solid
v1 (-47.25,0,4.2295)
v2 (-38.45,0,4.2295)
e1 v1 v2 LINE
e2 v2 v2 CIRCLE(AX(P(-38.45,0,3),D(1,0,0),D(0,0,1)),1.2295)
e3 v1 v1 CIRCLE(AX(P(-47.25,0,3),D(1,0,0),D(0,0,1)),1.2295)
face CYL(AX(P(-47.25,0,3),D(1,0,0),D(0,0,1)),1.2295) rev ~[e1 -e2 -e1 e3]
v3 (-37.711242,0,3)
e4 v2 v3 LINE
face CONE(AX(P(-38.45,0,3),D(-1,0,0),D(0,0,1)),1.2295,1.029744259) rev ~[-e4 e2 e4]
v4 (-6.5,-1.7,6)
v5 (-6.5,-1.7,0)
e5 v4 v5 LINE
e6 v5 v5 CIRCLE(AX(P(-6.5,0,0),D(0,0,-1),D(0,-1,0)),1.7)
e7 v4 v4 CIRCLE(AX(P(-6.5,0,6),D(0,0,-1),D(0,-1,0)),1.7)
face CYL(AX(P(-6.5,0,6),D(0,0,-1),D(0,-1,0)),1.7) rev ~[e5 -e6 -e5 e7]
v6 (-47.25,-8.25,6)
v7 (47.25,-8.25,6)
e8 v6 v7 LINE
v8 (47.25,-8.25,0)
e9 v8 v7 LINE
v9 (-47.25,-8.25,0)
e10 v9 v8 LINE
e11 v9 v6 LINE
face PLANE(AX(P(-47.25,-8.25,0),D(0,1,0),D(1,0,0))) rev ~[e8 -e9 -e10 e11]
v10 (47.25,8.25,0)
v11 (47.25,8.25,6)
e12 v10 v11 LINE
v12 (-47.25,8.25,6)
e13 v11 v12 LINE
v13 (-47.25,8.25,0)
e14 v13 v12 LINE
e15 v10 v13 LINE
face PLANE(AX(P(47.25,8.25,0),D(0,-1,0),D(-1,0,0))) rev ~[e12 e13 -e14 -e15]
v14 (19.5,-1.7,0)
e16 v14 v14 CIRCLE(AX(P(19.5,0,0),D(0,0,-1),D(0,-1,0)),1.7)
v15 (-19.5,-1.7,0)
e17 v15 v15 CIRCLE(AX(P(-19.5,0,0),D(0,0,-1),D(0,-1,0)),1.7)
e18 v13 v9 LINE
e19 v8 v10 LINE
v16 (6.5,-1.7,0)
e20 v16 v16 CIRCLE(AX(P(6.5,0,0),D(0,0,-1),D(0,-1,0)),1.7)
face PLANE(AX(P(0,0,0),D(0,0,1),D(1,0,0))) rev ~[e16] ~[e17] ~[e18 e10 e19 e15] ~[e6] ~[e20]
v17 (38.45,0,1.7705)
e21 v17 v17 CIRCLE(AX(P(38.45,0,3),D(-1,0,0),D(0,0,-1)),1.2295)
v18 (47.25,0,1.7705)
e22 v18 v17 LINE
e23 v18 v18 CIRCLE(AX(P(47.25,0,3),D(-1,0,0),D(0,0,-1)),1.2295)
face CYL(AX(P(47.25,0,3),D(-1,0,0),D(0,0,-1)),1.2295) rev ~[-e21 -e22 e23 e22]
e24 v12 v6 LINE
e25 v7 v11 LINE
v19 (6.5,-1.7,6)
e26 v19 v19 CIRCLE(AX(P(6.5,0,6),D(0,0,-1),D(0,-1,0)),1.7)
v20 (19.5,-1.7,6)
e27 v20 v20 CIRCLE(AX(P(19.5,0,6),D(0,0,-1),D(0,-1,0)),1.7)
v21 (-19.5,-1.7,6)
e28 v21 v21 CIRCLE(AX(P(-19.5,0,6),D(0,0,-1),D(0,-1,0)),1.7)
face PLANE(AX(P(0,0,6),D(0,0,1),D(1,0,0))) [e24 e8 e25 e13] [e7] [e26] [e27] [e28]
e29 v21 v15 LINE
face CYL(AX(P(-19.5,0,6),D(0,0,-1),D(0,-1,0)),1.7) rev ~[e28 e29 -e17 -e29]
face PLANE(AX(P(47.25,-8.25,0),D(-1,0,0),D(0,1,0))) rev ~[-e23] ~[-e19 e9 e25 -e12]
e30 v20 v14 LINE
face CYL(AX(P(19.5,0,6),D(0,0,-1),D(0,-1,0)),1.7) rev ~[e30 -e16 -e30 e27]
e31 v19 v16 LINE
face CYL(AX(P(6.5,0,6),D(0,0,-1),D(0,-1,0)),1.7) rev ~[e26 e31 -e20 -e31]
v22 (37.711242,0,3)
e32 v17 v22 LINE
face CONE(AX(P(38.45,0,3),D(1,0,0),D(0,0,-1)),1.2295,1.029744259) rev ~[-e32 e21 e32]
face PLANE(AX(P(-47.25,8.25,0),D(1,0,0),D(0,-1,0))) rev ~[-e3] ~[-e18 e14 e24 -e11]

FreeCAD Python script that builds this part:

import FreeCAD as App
import Part
import Sketcher

doc = App.newDocument("Part")
params = doc.addObject("Spreadsheet::Sheet", "Params")
for row, (alias, value) in enumerate([
    ("sketch1_width", "94.5 mm"),
    ("sketch1_height", "16.5 mm"),
    ("pad1_length", "6 mm"),
    ("sketch2_diameter", "3.4 mm"),
    ("hole_diameter", "3.4 mm"),
    ("hole_depth", "8 mm"),
    ("hole2_diameter", "2.459 mm"),
    ("hole2_depth", "8.8 mm"),
    ("hole3_diameter", "2.459 mm"),
    ("hole3_depth", "8.8 mm"),
], start=1):
    params.set(f"A{row}", alias)
    params.set(f"B{row}", "=" + value)
    params.setAlias(f"B{row}", alias)

body = doc.addObject("PartDesign::Body", "Body")

sketch1 = body.newObject("Sketcher::SketchObject", "Sketch")
sketch1.AttachmentSupport = (doc.getObject("XY_Plane"), [""])
sketch1.MapMode = "FlatFace"
sketch1.addGeometry([
    Part.LineSegment(App.Vector(-47, 8, 0), App.Vector(-47, -8, 0)),
    Part.LineSegment(App.Vector(-47, -8, 0), App.Vector(47, -8, 0)),
    Part.LineSegment(App.Vector(47, -8, 0), App.Vector(47, 8, 0)),
    Part.LineSegment(App.Vector(47, 8, 0), App.Vector(-47, 8, 0)),
], False)
sketch1.addConstraint([
    Sketcher.Constraint("Coincident", 0, 2, 1, 1),
    Sketcher.Constraint("Coincident", 1, 2, 2, 1),
    Sketcher.Constraint("Coincident", 2, 2, 3, 1),
    Sketcher.Constraint("Coincident", 3, 2, 0, 1),
    Sketcher.Constraint("Vertical", 0),
    Sketcher.Constraint("Horizontal", 1),
    Sketcher.Constraint("Vertical", 2),
    Sketcher.Constraint("Horizontal", 3),
    Sketcher.Constraint("Symmetric", 0, 2, 2, 2, -1, 1),
    Sketcher.Constraint("DistanceX", 1, 1, 1, 2, 94.5),
    Sketcher.Constraint("DistanceY", 0, 2, 0, 1, 16.5),
])
sketch1.setExpression("Constraints[9]", "Params.sketch1_width")
sketch1.setExpression("Constraints[10]", "Params.sketch1_height")
pad1 = body.newObject("PartDesign::Pad", "Pad")
pad1.Profile = sketch1
pad1.setExpression("Length", "Params.pad1_length")

sketch2 = body.newObject("Sketcher::SketchObject", "Sketch001")
sketch2.AttachmentSupport = (doc.getObject("XY_Plane"), [""])
sketch2.MapMode = "FlatFace"
sketch2.AttachmentOffset = App.Placement(App.Vector(0, 0, 6), App.Rotation())
sketch2.addGeometry([
    Part.Circle(App.Vector(-19.5, 0, 0), App.Vector(0, 0, 1), 1.7),
    Part.Circle(App.Vector(-6.5, 0, 0), App.Vector(0, 0, 1), 1.7),
    Part.Circle(App.Vector(6.5, 0, 0), App.Vector(0, 0, 1), 1.7),
    Part.Circle(App.Vector(19.5, 0, 0), App.Vector(0, 0, 1), 1.7),
], False)
sketch2.addConstraint([
    Sketcher.Constraint("Equal", 0, 1),
    Sketcher.Constraint("Equal", 1, 2),
    Sketcher.Constraint("Equal", 2, 3),
    Sketcher.Constraint("Symmetric", 1, 3, 2, 3, -1, 1),
    Sketcher.Constraint("Symmetric", 0, 3, 3, 3, -1, 1),
    Sketcher.Constraint("PointOnObject", 0, 3, -1),
    Sketcher.Constraint("PointOnObject", 1, 3, -1),
    Sketcher.Constraint("Diameter", 0, 3.4),
    Sketcher.Constraint("DistanceX", 0, 3, 1, 3, 13.0),
    Sketcher.Constraint("DistanceX", 1, 3, 2, 3, 13.0),
])
sketch2.setExpression("Constraints[7]", "Params.sketch2_diameter")
doc.recompute()
hole = body.newObject("PartDesign::Hole", "Hole")
hole.Profile = sketch2
hole.ThreadType = "None"
hole.setExpression("Diameter", "Params.hole_diameter")
hole.DepthType = "Dimension"
hole.setExpression("Depth", "Params.hole_depth")
hole.DrillPoint = "Angled"
hole.DrillPointAngle = 118

sketch3 = body.newObject("Sketcher::SketchObject", "Sketch002")
sketch3.AttachmentSupport = (doc.getObject("YZ_Plane"), [""])
sketch3.MapMode = "FlatFace"
sketch3.AttachmentOffset = App.Placement(App.Vector(0, 0, 47.25), App.Rotation())
sketch3.addGeometry(Part.Circle(App.Vector(0, 3, 0), App.Vector(0, 0, 1), 1.2), False)
sketch3.addConstraint([
    Sketcher.Constraint("PointOnObject", 0, 3, -2),
    Sketcher.Constraint("Diameter", 0, 2.459),
    Sketcher.Constraint("DistanceY", -1, 1, 0, 3, 3.0),
])
doc.recompute()
hole2 = body.newObject("PartDesign::Hole", "Hole001")
hole2.Profile = sketch3
hole2.ThreadType = "None"
hole2.setExpression("Diameter", "Params.hole2_diameter")
hole2.DepthType = "Dimension"
hole2.setExpression("Depth", "Params.hole2_depth")
hole2.DrillPoint = "Angled"
hole2.DrillPointAngle = 118

sketch4 = body.newObject("Sketcher::SketchObject", "Sketch003")
sketch4.AttachmentSupport = (doc.getObject("YZ_Plane"), [""])
sketch4.MapMode = "FlatFace"
sketch4.AttachmentOffset = App.Placement(App.Vector(0, 0, -47.25), App.Rotation())
sketch4.addGeometry(Part.Circle(App.Vector(0, 3, 0), App.Vector(0, 0, 1), 1.2), False)
sketch4.addConstraint([
    Sketcher.Constraint("PointOnObject", 0, 3, -2),
    Sketcher.Constraint("Diameter", 0, 2.459),
    Sketcher.Constraint("DistanceY", -1, 1, 0, 3, 3.0),
])
doc.recompute()
hole3 = body.newObject("PartDesign::Hole", "Hole002")
hole3.Profile = sketch4
hole3.ThreadType = "None"
hole3.setExpression("Diameter", "Params.hole3_diameter")
hole3.DepthType = "Dimension"
hole3.setExpression("Depth", "Params.hole3_depth")
hole3.DrillPoint = "Angled"
hole3.DrillPointAngle = 118
hole3.Reversed = True

doc.recompute()
